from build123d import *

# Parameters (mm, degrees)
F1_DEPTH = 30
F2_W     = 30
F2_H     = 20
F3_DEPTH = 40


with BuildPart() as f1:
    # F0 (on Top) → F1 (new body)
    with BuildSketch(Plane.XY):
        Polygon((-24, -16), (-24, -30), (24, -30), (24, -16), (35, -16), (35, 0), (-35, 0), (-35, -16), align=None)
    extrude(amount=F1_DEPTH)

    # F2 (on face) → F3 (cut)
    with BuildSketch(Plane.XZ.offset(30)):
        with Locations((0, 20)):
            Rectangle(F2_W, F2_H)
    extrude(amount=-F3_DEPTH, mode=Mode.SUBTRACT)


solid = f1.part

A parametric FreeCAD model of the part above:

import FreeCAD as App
import Part
import Sketcher
from FreeCAD import Vector


def add_polygon(sketch, points):
    """Adds a closed chain of lines whose ends are joined by coincident constraints."""
    first, n = sketch.GeometryCount, len(points)
    for a, b in zip(points, points[1:] + points[:1]):
        sketch.addGeometry(Part.LineSegment(App.Vector(*a, 0), App.Vector(*b, 0)), False)
    for i in range(n):
        sketch.addConstraint(Sketcher.Constraint("Coincident", first + i, 2, first + (i + 1) % n, 1))

doc = App.newDocument("Part")
body = doc.addObject("PartDesign::Body", "Body")

sketch1 = body.newObject("Sketcher::SketchObject", "Sketch")
sketch1.AttachmentSupport = (doc.getObject("XY_Plane"), [""])
sketch1.MapMode = "FlatFace"
add_polygon(sketch1, [(-24, -16), (-24, -30), (24, -30), (24, -16), (35, -16), (35, 0), (-35, 0), (-35, -16)])
sketch1.addConstraint([
    Sketcher.Constraint("Vertical", 0),
    Sketcher.Constraint("Horizontal", 1),
    Sketcher.Constraint("Vertical", 2),
    Sketcher.Constraint("Horizontal", 3),
    Sketcher.Constraint("Vertical", 4),
    Sketcher.Constraint("Horizontal", 5),
    Sketcher.Constraint("Vertical", 6),
    Sketcher.Constraint("Horizontal", 7),
    Sketcher.Constraint("Symmetric", 4, 2, 5, 2, -1, 1),
    Sketcher.Constraint("Symmetric", 2, 2, 7, 2, -2),
    Sketcher.Constraint("DistanceX", 1, 1, 1, 2, 48.0),
    Sketcher.Constraint("DistanceX", 3, 1, 3, 2, 11.0),
    Sketcher.Constraint("DistanceY", 0, 2, 0, 1, 14.0),
    Sketcher.Constraint("DistanceY", 4, 1, 4, 2, 16.0),
])
pad1 = body.newObject("PartDesign::Pad", "Pad")
pad1.Profile = sketch1
pad1.Length = 30

sketch2 = body.newObject("Sketcher::SketchObject", "Sketch001")
sketch2.AttachmentSupport = (doc.getObject("XZ_Plane"), [""])
sketch2.MapMode = "FlatFace"
sketch2.AttachmentOffset = App.Placement(Vector(0, 0, 30), App.Rotation())
add_polygon(sketch2, [(-15, 30), (-15, 10), (15, 10), (15, 30)])
sketch2.addConstraint([
    Sketcher.Constraint("Vertical", 0),
    Sketcher.Constraint("Horizontal", 1),
    Sketcher.Constraint("Vertical", 2),
    Sketcher.Constraint("Horizontal", 3),
    Sketcher.Constraint("DistanceX", 1, 1, 1, 2, 30.0),
    Sketcher.Constraint("DistanceY", 0, 2, 0, 1, 20.0),
    Sketcher.Constraint("DistanceX", 0, 2, -1, 1, 15.0),
    Sketcher.Constraint("DistanceY", -1, 1, 0, 2, 10.0),
])
pocket1 = body.newObject("PartDesign::Pocket", "Pocket")
pocket1.Profile = sketch2
pocket1.Length = 40

doc.recompute()
